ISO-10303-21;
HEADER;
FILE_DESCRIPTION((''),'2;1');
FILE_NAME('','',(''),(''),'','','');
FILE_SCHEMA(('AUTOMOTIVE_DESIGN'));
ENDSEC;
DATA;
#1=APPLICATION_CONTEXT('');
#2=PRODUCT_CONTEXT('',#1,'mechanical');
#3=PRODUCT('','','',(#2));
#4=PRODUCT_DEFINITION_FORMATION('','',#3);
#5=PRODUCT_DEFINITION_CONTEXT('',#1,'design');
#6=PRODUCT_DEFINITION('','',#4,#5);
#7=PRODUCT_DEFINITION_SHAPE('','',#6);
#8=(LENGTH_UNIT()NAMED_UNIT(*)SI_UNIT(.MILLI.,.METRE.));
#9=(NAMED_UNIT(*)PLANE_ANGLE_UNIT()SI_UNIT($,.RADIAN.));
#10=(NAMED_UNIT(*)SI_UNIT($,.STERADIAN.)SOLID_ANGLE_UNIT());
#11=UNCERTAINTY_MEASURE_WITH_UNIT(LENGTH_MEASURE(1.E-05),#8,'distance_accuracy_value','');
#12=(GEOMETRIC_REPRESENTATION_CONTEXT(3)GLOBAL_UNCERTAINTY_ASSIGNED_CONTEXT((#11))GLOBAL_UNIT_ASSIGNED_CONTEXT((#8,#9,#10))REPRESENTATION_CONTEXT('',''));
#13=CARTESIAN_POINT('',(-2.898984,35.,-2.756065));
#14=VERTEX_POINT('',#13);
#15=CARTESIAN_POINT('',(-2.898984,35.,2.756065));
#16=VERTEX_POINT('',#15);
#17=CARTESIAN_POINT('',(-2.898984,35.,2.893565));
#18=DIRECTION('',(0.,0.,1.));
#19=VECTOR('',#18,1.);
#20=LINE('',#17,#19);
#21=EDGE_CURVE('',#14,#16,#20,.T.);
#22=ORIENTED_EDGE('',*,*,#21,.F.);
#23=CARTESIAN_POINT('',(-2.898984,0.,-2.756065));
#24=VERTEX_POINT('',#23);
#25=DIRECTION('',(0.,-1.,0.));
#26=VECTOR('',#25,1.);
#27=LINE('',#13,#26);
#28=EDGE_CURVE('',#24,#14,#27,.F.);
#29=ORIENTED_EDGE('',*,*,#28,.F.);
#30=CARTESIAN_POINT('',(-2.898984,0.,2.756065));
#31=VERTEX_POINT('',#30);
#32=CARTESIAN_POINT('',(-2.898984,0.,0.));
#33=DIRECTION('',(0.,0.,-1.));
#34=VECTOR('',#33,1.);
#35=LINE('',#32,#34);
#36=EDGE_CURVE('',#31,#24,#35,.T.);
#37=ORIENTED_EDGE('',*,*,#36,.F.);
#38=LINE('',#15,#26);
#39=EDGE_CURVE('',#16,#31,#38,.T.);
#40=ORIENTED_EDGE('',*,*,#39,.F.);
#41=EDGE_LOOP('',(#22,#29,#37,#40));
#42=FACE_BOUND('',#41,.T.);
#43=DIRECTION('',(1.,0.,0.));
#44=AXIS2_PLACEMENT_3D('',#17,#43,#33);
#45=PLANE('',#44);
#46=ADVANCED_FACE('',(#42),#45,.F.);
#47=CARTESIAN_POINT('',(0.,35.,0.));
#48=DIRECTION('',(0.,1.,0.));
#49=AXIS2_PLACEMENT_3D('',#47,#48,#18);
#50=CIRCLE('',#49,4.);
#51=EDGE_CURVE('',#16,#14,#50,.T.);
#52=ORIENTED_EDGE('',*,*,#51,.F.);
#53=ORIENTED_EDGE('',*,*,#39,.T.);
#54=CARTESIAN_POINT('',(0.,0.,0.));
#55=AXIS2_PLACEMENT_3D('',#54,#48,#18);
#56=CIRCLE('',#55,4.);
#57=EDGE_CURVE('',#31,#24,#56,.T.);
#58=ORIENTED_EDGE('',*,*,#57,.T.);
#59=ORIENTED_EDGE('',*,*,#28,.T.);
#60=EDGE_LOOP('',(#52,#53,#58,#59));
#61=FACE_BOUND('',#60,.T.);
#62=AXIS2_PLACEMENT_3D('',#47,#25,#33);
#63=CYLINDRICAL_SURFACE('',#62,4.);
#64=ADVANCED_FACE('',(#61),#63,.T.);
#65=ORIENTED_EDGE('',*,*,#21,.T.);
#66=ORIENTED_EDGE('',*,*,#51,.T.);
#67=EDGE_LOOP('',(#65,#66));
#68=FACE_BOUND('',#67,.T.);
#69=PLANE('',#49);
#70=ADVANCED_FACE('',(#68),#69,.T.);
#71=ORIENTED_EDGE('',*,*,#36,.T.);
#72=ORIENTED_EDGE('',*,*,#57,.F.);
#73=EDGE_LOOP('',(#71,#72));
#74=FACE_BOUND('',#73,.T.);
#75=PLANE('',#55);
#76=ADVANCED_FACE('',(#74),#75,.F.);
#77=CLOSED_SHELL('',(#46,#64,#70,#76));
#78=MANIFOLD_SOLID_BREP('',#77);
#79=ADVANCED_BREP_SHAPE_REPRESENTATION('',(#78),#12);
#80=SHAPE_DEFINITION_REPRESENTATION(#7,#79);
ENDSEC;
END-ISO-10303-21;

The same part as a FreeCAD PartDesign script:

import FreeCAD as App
import Part
import Sketcher

V = App.Vector


def add_polygon(sketch, points):
    """Adds a closed chain of lines whose ends are joined by coincident constraints."""
    first, n = sketch.GeometryCount, len(points)
    for a, b in zip(points, points[1:] + points[:1]):
        sketch.addGeometry(Part.LineSegment(App.Vector(*a, 0), App.Vector(*b, 0)), False)
    for i in range(n):
        sketch.addConstraint(Sketcher.Constraint("Coincident", first + i, 2, first + (i + 1) % n, 1))

doc = App.newDocument("Part")
body = doc.addObject("PartDesign::Body", "Body")

sketch1 = body.newObject("Sketcher::SketchObject", "Sketch")
sketch1.AttachmentSupport = (doc.getObject("XZ_Plane"), [""])
sketch1.MapMode = "FlatFace"
sketch1.addGeometry(Part.Circle(V(0, 0, 0), V(0, 0, 1), 4), False)
sketch1.addConstraint(Sketcher.Constraint("Coincident", 0, 3, -1, 1))
sketch1.addConstraint(Sketcher.Constraint("Diameter", 0, 8.0))
pad1 = body.newObject("PartDesign::Pad", "Pad")
pad1.Profile = sketch1
pad1.Length = 35
pad1.Reversed = True

sketch2 = body.newObject("Sketcher::SketchObject", "Sketch001")
sketch2.AttachmentSupport = (doc.getObject("XZ_Plane"), [""])
sketch2.MapMode = "FlatFace"
add_polygon(sketch2, [(-4.658315, 2.893565), (-4.658315, -3.760984), (-2.898984, -3.760984), (-2.898984, 2.893565)])
sketch2.addConstraint(Sketcher.Constraint("Vertical", 0))
sketch2.addConstraint(Sketcher.Constraint("Horizontal", 1))
sketch2.addConstraint(Sketcher.Constraint("Vertical", 2))
sketch2.addConstraint(Sketcher.Constraint("Horizontal", 3))
sketch2.addConstraint(Sketcher.Constraint("DistanceX", 1, 1, 1, 2, 1.759331))
sketch2.addConstraint(Sketcher.Constraint("DistanceY", 0, 2, 0, 1, 6.65455))
sketch2.addConstraint(Sketcher.Constraint("DistanceX", 0, 2, -1, 1, 4.658315))
sketch2.addConstraint(Sketcher.Constraint("DistanceY", 0, 2, -1, 1, 3.760984))
pocket1 = body.newObject("PartDesign::Pocket", "Pocket")
pocket1.Profile = sketch2
pocket1.Type = "ThroughAll"

doc.recompute()
